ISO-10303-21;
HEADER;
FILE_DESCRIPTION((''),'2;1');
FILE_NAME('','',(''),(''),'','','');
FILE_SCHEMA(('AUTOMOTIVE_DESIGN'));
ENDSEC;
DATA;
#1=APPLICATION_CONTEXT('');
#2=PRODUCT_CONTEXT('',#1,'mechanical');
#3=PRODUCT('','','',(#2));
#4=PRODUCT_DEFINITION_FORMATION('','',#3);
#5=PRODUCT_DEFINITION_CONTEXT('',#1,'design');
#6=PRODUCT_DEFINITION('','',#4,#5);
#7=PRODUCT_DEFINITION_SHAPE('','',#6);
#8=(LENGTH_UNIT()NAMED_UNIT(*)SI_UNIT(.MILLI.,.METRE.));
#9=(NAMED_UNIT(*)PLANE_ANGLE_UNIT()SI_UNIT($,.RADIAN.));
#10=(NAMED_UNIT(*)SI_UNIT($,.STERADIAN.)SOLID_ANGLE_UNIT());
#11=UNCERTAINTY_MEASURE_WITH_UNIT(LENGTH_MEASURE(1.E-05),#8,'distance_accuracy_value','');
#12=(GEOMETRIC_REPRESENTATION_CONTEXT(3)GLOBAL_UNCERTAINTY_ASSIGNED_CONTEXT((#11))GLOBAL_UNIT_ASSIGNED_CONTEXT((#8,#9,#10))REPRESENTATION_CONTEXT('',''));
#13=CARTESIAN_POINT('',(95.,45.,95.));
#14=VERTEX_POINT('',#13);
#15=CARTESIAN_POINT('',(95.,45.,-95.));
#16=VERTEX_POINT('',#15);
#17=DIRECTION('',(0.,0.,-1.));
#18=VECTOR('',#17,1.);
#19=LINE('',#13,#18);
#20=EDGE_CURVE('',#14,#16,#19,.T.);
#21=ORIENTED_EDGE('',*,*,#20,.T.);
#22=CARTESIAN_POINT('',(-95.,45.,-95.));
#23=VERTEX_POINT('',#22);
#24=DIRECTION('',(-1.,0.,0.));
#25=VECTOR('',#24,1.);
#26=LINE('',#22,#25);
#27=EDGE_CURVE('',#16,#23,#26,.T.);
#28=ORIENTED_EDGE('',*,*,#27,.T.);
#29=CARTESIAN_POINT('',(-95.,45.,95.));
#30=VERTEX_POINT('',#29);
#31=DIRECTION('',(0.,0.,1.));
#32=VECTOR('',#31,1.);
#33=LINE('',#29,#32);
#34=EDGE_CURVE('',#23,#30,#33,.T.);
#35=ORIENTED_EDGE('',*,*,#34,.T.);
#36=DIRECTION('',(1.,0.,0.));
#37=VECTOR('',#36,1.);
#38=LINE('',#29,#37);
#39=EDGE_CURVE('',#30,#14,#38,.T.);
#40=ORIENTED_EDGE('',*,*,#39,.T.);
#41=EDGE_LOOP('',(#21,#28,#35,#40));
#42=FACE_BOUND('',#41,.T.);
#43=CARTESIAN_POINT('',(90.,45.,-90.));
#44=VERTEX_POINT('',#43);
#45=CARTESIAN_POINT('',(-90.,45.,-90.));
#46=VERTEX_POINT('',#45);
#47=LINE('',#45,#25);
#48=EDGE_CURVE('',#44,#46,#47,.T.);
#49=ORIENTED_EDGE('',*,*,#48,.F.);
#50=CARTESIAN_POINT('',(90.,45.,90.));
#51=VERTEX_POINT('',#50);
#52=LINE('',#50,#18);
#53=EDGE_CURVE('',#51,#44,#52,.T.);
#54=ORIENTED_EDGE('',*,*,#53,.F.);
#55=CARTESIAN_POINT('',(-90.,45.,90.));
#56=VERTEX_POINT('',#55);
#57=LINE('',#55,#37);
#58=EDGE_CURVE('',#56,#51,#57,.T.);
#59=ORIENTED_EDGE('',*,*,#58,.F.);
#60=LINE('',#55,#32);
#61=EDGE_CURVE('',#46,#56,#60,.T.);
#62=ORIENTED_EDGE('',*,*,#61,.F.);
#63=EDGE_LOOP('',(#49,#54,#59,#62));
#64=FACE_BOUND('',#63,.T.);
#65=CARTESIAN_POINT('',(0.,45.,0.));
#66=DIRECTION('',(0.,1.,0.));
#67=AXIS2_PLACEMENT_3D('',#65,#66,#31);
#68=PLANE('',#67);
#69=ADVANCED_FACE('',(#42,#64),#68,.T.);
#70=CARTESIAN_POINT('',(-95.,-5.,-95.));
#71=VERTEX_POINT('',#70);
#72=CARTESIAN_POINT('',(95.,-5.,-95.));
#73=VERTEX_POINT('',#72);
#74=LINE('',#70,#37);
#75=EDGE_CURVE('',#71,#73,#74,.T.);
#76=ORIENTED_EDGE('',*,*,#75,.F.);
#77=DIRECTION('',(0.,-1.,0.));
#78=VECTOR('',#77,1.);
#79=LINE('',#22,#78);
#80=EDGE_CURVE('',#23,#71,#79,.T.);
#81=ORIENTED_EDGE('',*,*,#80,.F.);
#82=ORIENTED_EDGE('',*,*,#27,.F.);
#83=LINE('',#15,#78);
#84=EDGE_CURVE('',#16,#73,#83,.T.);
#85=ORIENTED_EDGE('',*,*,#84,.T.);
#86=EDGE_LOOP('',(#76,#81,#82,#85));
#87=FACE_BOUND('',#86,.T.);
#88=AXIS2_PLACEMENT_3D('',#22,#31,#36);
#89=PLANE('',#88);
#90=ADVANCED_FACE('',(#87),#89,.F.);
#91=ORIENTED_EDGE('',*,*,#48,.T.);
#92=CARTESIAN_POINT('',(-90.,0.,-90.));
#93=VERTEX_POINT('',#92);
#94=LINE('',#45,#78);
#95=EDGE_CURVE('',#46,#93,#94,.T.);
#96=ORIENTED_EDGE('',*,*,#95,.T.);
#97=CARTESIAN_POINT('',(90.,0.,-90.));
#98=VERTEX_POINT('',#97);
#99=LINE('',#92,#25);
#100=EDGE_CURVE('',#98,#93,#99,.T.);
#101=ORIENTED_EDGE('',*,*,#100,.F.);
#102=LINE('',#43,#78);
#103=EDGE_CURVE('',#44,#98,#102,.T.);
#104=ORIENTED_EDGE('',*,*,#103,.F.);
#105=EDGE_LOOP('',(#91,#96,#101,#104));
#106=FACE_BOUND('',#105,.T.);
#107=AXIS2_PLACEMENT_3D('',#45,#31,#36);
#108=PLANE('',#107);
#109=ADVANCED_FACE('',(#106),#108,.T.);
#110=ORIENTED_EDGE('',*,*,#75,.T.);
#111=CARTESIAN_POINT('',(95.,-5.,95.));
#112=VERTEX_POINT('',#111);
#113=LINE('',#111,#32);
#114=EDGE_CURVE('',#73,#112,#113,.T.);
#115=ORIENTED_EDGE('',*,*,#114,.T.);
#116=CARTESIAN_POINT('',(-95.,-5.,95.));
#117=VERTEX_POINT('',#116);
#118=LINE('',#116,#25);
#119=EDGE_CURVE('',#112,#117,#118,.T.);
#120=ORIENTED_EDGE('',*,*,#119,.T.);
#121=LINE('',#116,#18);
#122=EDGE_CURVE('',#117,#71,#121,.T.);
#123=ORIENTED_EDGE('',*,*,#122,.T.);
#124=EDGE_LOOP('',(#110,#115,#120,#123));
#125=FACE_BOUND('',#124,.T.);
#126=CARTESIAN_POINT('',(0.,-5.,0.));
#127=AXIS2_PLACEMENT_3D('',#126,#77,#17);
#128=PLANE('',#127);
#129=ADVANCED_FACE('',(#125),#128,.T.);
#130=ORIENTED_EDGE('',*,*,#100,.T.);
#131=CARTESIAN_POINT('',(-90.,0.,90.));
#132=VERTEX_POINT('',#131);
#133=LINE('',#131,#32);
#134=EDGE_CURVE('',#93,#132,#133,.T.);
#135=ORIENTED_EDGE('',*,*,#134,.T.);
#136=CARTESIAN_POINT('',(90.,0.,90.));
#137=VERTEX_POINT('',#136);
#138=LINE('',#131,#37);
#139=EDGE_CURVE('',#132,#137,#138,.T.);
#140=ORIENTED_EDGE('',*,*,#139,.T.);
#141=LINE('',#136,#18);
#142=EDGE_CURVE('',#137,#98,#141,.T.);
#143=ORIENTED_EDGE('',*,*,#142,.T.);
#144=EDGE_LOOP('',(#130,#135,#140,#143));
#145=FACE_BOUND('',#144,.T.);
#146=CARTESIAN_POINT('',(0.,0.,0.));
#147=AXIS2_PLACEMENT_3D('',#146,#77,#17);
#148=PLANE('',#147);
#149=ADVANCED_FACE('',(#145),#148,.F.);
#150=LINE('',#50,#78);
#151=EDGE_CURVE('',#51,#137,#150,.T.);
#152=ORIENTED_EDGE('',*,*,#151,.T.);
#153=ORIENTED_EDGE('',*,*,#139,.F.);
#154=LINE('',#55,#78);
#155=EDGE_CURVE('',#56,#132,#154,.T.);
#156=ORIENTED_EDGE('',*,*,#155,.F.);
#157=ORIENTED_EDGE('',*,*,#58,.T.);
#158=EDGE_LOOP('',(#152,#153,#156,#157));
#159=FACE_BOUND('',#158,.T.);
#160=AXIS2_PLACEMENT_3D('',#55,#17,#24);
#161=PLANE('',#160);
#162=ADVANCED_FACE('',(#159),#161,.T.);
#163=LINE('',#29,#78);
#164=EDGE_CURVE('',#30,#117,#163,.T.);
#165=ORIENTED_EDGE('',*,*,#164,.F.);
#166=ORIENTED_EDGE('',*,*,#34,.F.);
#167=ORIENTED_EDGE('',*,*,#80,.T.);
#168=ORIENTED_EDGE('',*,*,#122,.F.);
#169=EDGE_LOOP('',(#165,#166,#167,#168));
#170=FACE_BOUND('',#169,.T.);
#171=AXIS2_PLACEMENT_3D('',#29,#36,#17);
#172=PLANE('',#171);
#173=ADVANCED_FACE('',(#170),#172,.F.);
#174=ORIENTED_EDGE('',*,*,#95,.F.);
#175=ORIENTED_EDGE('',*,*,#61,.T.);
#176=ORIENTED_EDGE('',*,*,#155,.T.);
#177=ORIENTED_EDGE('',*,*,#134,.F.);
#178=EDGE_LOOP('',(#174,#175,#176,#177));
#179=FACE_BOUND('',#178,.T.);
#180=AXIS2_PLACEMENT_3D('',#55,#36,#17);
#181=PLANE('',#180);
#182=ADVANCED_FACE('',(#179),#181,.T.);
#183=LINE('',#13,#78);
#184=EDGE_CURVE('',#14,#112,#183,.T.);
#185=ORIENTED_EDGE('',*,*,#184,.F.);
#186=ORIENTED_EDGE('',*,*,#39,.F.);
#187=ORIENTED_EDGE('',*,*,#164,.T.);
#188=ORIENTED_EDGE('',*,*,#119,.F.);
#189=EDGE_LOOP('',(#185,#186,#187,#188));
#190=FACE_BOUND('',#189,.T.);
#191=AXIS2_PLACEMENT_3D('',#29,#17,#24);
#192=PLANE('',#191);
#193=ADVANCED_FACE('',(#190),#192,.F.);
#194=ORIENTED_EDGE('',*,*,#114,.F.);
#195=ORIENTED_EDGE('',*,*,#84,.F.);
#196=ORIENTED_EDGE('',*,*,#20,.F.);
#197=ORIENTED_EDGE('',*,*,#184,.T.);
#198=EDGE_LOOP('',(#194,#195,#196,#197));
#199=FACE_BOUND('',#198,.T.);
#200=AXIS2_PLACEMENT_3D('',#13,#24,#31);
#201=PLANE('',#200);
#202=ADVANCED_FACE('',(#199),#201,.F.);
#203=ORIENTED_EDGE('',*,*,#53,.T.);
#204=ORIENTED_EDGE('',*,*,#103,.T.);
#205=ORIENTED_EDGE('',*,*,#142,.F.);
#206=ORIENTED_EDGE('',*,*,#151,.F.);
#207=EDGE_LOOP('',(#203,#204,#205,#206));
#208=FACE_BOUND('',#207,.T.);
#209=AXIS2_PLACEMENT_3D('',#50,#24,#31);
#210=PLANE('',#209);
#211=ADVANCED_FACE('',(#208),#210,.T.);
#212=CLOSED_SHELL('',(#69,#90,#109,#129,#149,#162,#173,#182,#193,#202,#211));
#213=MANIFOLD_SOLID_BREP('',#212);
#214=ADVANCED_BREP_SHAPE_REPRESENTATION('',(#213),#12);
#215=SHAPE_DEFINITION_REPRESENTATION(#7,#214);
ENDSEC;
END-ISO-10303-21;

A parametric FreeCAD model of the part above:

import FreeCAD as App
import Part
import Sketcher

V = App.Vector

doc = App.newDocument("Part")
body = doc.addObject("PartDesign::Body", "Body")

# Sketch on XZ plane
sketch1 = body.newObject("Sketcher::SketchObject", "Sketch")
sketch1.AttachmentSupport = (doc.getObject("XZ_Plane"), [""])
sketch1.MapMode = "FlatFace"
sketch1.addGeometry([
    Part.LineSegment(V(-95, -95, 0), V(-95, 95, 0)),  # 0
    Part.LineSegment(V(-95, 95, 0), V(95, 95, 0)),  # 1
    Part.LineSegment(V(95, 95, 0), V(95, -95, 0)),  # 2
    Part.LineSegment(V(95, -95, 0), V(-95, -95, 0)),  # 3
    Part.LineSegment(V(90, 90, 0), V(-90, 90, 0)),  # 4
    Part.LineSegment(V(-90, 90, 0), V(-90, -90, 0)),  # 5
    Part.LineSegment(V(-90, -90, 0), V(90, -90, 0)),  # 6
    Part.LineSegment(V(90, -90, 0), V(90, 90, 0)),  # 7
], False)
sketch1.addConstraint([
    Sketcher.Constraint("Coincident", 0, 2, 1, 1),
    Sketcher.Constraint("Coincident", 1, 2, 2, 1),
    Sketcher.Constraint("Coincident", 2, 2, 3, 1),
    Sketcher.Constraint("Coincident", 3, 2, 0, 1),
    Sketcher.Constraint("Coincident", 4, 2, 5, 1),
    Sketcher.Constraint("Coincident", 5, 2, 6, 1),
    Sketcher.Constraint("Coincident", 6, 2, 7, 1),
    Sketcher.Constraint("Coincident", 7, 2, 4, 1),
    Sketcher.Constraint("Vertical", 0),
    Sketcher.Constraint("Horizontal", 1),
    Sketcher.Constraint("Vertical", 2),
    Sketcher.Constraint("Horizontal", 3),
    Sketcher.Constraint("Horizontal", 4),
    Sketcher.Constraint("Vertical", 5),
    Sketcher.Constraint("Horizontal", 6),
    Sketcher.Constraint("Vertical", 7),
    Sketcher.Constraint("Symmetric", 0, 2, 2, 2, -1, 1),
    Sketcher.Constraint("Symmetric", 4, 2, 6, 2, -1, 1),
    Sketcher.Constraint("Equal", 3, 0),
    Sketcher.Constraint("Equal", 6, 5),
    Sketcher.Constraint("DistanceX", 1, 1, 1, 2, 190.0),
    Sketcher.Constraint("DistanceX", 4, 2, 4, 1, 180.0),
])
pad1 = body.newObject("PartDesign::Pad", "Pad")
pad1.Profile = sketch1
pad1.Length = 45
pad1.Reversed = True

# Sketch on XZ plane
sketch2 = body.newObject("Sketcher::SketchObject", "Sketch001")
sketch2.AttachmentSupport = (doc.getObject("XZ_Plane"), [""])
sketch2.MapMode = "FlatFace"
sketch2.addGeometry([
    Part.LineSegment(V(-95, 95, 0), V(-95, -95, 0)),
    Part.LineSegment(V(-95, -95, 0), V(95, -95, 0)),
    Part.LineSegment(V(95, -95, 0), V(95, 95, 0)),
    Part.LineSegment(V(95, 95, 0), V(-95, 95, 0)),
], False)
sketch2.addConstraint([
    Sketcher.Constraint("Coincident", 0, 2, 1, 1),
    Sketcher.Constraint("Coincident", 1, 2, 2, 1),
    Sketcher.Constraint("Coincident", 2, 2, 3, 1),
    Sketcher.Constraint("Coincident", 3, 2, 0, 1),
    Sketcher.Constraint("Vertical", 0),
    Sketcher.Constraint("Horizontal", 1),
    Sketcher.Constraint("Vertical", 2),
    Sketcher.Constraint("Horizontal", 3),
    Sketcher.Constraint("Symmetric", 0, 2, 2, 2, -1, 1),
    Sketcher.Constraint("Equal", 3, 0),
    Sketcher.Constraint("DistanceX", 1, 1, 1, 2, 190.0),
])
pad2 = body.newObject("PartDesign::Pad", "Pad001")
pad2.Profile = sketch2
pad2.Length = 5

doc.recompute()
